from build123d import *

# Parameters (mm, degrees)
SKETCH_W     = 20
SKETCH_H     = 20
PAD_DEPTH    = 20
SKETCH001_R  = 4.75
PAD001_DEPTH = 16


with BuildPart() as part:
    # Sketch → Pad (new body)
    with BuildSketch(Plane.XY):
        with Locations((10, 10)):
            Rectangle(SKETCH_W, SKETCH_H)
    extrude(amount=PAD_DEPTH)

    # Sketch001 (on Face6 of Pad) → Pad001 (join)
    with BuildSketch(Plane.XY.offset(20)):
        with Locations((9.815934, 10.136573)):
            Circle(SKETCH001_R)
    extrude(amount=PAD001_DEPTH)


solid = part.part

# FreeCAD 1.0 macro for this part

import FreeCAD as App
import Part
import Sketcher

V = App.Vector
Q = App.Units.Quantity

doc = App.newDocument("Part")
params = doc.addObject("Spreadsheet::Sheet", "Params")
for row, (alias, value) in enumerate([
    ("sketch1_width", "20 mm"),
    ("pad1_length", "20 mm"),
    ("sketch2_diameter", "9.5 mm"),
    ("pad2_length", "16 mm"),
], start=1):
    params.set(f"A{row}", alias)
    params.set(f"B{row}", "=" + value)
    params.setAlias(f"B{row}", alias)

body = doc.addObject("PartDesign::Body", "Body")

sketch1 = body.newObject("Sketcher::SketchObject", "Sketch")
sketch1.AttachmentSupport = (doc.getObject("XY_Plane"), [""])
sketch1.MapMode = "FlatFace"
sketch1.addGeometry(Part.LineSegment(V(0, 20, 0), V(0, 0, 0)), False)
sketch1.addGeometry(Part.LineSegment(V(0, 0, 0), V(20, 0, 0)), False)
sketch1.addGeometry(Part.LineSegment(V(20, 0, 0), V(20, 20, 0)), False)
sketch1.addGeometry(Part.LineSegment(V(20, 20, 0), V(0, 20, 0)), False)
sketch1.addConstraint(Sketcher.Constraint("Coincident", 0, 2, 1, 1))
sketch1.addConstraint(Sketcher.Constraint("Coincident", 1, 2, 2, 1))
sketch1.addConstraint(Sketcher.Constraint("Coincident", 2, 2, 3, 1))
sketch1.addConstraint(Sketcher.Constraint("Coincident", 3, 2, 0, 1))
sketch1.addConstraint(Sketcher.Constraint("Vertical", 0))
sketch1.addConstraint(Sketcher.Constraint("Horizontal", 1))
sketch1.addConstraint(Sketcher.Constraint("Vertical", 2))
sketch1.addConstraint(Sketcher.Constraint("Horizontal", 3))
sketch1.addConstraint(Sketcher.Constraint("Coincident", 0, 2, -1, 1))
sketch1.addConstraint(Sketcher.Constraint("Equal", 3, 0))
sketch1.addConstraint(Sketcher.Constraint("DistanceX", 1, 1, 1, 2, Q("20 mm")))
sketch1.setExpression("Constraints[10]", "Params.sketch1_width")
pad1 = body.newObject("PartDesign::Pad", "Pad")
pad1.Profile = sketch1
pad1.setExpression("Length", "Params.pad1_length")

sketch2 = body.newObject("Sketcher::SketchObject", "Sketch001")
sketch2.AttachmentSupport = (doc.getObject("XY_Plane"), [""])
sketch2.MapMode = "FlatFace"
sketch2.AttachmentOffset = App.Placement(V(0, 0, 20), App.Rotation())
sketch2.addGeometry(Part.Circle(V(9.8, 10.1, 0), V(0, 0, 1), 4.8), False)
sketch2.addConstraint(Sketcher.Constraint("Diameter", 0, Q("9.5 mm")))
sketch2.addConstraint(Sketcher.Constraint("DistanceX", -1, 1, 0, 3, Q("9.815934 mm")))
sketch2.addConstraint(Sketcher.Constraint("DistanceY", -1, 1, 0, 3, Q("10.136573 mm")))
sketch2.setExpression("Constraints[0]", "Params.sketch2_diameter")
pad2 = body.newObject("PartDesign::Pad", "Pad001")
pad2.Profile = sketch2
pad2.setExpression("Length", "Params.pad2_length")

doc.recompute()
